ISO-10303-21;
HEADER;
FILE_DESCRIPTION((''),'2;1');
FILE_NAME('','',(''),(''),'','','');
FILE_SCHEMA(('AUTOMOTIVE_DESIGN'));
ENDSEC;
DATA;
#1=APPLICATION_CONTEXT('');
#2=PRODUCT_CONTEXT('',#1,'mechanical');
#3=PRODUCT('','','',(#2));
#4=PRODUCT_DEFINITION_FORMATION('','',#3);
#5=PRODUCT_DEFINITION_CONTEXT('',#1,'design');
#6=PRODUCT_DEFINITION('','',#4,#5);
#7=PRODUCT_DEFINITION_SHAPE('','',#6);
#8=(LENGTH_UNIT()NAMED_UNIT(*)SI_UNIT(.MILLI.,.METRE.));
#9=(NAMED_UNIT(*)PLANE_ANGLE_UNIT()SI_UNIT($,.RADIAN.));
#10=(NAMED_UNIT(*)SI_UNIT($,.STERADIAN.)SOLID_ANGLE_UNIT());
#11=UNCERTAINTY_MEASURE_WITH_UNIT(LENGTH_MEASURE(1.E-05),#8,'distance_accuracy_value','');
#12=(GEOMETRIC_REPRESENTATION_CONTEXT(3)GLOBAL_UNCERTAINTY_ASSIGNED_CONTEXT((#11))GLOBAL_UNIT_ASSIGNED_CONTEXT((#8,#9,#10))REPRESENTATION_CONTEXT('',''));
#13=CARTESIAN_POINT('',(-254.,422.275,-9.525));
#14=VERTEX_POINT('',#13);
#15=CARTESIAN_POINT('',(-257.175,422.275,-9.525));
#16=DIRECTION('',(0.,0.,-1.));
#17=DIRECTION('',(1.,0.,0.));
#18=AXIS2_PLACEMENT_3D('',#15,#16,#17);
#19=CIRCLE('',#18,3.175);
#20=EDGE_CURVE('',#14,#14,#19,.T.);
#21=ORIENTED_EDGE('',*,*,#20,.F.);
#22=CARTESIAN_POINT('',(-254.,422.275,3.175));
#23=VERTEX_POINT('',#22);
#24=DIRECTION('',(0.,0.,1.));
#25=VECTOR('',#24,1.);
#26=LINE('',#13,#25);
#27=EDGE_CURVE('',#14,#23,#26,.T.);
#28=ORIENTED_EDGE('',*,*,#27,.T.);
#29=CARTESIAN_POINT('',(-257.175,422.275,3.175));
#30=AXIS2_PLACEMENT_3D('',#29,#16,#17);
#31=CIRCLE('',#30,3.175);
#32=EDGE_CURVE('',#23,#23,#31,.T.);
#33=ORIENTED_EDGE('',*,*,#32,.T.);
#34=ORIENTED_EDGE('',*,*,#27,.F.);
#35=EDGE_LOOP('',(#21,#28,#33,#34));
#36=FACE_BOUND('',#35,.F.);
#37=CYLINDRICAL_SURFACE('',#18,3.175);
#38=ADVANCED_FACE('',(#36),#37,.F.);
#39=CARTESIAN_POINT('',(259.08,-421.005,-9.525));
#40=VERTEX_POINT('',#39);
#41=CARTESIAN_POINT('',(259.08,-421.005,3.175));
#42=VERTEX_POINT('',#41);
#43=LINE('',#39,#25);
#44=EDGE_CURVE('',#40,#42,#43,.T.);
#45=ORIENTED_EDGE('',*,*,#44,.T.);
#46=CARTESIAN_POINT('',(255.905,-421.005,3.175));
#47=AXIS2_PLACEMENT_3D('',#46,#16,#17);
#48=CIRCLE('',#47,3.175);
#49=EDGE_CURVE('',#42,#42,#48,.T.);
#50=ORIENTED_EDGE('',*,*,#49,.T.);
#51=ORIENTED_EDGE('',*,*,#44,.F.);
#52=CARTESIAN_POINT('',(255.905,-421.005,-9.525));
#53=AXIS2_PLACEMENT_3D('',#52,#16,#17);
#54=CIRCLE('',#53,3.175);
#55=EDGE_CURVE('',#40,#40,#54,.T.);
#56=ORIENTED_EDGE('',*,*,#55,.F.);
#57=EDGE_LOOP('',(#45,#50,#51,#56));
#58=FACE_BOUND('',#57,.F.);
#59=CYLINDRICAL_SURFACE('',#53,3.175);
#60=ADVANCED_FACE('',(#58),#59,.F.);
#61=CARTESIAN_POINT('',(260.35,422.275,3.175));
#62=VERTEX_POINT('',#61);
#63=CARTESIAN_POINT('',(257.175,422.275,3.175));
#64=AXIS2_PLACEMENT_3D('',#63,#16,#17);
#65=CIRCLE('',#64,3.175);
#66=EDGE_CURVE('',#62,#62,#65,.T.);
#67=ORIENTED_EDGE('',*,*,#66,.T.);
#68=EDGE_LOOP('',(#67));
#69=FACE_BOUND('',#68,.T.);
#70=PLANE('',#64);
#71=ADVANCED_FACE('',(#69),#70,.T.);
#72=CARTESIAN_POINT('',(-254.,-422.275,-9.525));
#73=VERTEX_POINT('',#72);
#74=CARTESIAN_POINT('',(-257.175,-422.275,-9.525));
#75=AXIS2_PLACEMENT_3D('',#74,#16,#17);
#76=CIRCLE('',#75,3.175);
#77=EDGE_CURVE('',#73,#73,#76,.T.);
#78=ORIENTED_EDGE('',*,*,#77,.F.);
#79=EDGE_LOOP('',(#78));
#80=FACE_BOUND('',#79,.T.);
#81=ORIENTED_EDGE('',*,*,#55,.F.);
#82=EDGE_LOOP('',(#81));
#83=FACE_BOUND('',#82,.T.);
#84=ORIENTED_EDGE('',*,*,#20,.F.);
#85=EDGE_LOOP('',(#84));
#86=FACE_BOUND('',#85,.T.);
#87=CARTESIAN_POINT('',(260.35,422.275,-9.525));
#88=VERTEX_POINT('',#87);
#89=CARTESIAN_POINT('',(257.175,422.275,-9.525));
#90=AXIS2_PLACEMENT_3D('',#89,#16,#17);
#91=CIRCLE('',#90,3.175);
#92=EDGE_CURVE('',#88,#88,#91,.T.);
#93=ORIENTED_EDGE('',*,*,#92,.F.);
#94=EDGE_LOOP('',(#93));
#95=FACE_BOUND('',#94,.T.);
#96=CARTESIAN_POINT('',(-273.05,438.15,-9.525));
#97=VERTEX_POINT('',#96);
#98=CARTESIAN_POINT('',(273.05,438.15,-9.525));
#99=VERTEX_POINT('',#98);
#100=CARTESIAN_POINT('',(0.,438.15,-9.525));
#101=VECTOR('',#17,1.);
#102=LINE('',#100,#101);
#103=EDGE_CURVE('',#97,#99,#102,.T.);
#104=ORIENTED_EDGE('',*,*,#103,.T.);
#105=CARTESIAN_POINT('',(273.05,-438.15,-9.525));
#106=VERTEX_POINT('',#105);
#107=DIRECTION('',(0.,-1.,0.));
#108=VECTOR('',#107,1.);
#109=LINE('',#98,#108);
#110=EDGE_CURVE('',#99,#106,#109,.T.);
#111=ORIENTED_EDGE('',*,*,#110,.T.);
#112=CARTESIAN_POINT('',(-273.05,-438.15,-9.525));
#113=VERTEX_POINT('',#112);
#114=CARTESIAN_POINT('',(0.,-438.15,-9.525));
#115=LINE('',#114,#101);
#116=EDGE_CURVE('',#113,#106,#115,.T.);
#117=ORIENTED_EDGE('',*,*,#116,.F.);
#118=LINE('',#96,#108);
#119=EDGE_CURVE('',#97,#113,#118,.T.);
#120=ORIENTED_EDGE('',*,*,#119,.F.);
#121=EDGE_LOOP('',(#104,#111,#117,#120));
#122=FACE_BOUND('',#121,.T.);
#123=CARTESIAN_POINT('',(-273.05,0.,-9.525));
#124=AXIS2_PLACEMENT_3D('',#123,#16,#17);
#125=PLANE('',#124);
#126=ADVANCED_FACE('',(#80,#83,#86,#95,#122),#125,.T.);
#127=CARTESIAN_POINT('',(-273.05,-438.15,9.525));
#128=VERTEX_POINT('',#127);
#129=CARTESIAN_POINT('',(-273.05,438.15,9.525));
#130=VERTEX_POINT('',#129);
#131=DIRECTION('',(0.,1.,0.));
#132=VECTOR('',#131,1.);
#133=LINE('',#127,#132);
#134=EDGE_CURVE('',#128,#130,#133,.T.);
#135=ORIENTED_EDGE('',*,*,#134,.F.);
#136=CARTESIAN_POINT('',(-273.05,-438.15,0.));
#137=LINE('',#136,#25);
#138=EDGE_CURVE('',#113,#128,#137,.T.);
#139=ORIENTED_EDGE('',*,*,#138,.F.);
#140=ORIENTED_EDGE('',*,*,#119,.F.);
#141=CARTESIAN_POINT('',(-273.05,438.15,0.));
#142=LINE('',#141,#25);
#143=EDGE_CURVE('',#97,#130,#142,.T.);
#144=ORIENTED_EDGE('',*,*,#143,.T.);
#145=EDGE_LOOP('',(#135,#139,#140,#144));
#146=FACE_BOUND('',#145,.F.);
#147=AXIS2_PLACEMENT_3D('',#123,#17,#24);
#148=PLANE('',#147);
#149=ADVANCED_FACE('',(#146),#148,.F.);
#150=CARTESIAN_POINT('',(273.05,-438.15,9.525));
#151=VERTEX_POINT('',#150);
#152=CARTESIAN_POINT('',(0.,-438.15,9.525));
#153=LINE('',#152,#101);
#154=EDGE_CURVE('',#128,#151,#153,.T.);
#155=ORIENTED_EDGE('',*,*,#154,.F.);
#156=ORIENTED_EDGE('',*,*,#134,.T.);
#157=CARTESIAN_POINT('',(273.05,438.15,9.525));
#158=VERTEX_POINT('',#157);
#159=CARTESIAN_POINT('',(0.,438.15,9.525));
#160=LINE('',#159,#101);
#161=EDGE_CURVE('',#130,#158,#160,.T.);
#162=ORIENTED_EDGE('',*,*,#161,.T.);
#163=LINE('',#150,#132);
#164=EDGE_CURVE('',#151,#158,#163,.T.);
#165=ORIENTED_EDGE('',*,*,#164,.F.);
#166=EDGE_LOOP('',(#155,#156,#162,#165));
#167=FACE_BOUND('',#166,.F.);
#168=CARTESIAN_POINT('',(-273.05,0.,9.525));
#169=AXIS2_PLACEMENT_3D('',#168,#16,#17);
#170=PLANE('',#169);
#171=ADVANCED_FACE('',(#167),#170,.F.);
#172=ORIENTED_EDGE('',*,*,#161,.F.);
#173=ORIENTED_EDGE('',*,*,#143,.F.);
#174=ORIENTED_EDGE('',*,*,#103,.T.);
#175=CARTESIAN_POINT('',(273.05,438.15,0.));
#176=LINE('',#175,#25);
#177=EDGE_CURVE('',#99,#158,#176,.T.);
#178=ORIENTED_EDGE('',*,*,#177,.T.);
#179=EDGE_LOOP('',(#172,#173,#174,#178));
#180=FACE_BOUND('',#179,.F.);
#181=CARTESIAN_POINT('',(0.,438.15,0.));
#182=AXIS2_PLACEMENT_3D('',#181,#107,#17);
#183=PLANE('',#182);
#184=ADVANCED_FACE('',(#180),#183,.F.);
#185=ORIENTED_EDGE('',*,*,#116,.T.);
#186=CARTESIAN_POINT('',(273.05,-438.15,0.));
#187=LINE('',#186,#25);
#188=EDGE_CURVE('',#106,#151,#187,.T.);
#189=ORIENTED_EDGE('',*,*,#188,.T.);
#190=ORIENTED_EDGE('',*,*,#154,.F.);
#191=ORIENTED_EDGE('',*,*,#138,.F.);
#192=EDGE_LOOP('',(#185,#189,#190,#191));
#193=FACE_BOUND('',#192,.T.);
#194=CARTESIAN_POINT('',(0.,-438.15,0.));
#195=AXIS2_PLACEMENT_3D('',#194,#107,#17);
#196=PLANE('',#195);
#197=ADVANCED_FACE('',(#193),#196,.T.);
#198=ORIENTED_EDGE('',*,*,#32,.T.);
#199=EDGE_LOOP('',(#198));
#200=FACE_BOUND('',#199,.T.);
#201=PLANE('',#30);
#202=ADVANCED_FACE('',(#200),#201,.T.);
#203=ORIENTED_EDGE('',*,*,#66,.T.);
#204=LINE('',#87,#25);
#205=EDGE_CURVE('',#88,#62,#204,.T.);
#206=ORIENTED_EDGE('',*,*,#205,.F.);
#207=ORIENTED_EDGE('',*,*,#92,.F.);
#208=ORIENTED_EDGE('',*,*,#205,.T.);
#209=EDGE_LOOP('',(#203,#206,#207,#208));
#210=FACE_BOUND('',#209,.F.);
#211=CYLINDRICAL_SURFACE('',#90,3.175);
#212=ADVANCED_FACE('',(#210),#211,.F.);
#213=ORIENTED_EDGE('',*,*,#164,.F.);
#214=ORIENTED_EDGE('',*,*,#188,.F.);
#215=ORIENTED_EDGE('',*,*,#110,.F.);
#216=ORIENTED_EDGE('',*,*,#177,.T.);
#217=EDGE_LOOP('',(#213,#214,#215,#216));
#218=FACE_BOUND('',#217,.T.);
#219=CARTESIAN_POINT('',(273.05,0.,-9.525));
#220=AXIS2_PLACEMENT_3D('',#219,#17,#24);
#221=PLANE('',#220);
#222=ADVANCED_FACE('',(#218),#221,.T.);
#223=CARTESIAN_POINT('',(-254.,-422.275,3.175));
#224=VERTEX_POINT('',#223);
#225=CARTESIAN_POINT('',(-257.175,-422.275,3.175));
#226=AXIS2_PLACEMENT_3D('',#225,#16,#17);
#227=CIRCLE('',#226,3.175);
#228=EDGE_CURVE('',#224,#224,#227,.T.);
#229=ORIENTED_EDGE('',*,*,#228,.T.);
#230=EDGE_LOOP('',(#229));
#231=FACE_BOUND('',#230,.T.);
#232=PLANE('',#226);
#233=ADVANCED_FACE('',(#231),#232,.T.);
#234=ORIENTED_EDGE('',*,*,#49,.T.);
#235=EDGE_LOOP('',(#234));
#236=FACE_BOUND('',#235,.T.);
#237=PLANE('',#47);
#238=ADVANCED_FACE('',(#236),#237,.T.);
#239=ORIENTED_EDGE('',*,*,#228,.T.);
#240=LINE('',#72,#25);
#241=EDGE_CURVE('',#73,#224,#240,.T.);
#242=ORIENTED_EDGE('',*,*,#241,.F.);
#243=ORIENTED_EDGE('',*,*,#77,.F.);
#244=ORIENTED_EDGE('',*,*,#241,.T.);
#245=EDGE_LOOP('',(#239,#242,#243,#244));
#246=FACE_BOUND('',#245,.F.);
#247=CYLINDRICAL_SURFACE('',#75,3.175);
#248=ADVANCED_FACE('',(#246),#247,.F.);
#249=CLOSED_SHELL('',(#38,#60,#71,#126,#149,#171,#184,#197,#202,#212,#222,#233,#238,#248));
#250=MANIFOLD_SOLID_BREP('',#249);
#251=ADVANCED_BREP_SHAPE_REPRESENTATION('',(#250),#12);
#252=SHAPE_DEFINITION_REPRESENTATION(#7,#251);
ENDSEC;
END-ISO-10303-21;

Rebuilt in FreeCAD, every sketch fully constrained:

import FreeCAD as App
import Part
import Sketcher
from FreeCAD import Vector
Q = App.Units.Quantity


def add_polygon(sketch, points):
    """Adds a closed chain of lines whose ends are joined by coincident constraints."""
    first, n = sketch.GeometryCount, len(points)
    for a, b in zip(points, points[1:] + points[:1]):
        sketch.addGeometry(Part.LineSegment(App.Vector(*a, 0), App.Vector(*b, 0)), False)
    for i in range(n):
        sketch.addConstraint(Sketcher.Constraint("Coincident", first + i, 2, first + (i + 1) % n, 1))

doc = App.newDocument("Part")
body = doc.addObject("PartDesign::Body", "Body")

# Sketch on XZ plane
sketch1 = doc.addObject("Sketcher::SketchObject", "Sketch")
body.addObject(sketch1)
sketch1.AttachmentSupport = (doc.XZ_Plane, [""])
sketch1.MapMode = "FlatFace"
add_polygon(sketch1, [(-273, 10), (-273, -10), (273, -10), (273, 10)])  # lines 0-3
sketch1.addConstraint(Sketcher.Constraint("Vertical", 0))
sketch1.addConstraint(Sketcher.Constraint("Horizontal", 1))
sketch1.addConstraint(Sketcher.Constraint("Vertical", 2))
sketch1.addConstraint(Sketcher.Constraint("Horizontal", 3))
sketch1.addConstraint(Sketcher.Constraint("Symmetric", 0, 2, 2, 2, -1, 1))
sketch1.addConstraint(Sketcher.Constraint("DistanceX", 1, 1, 1, 2, Q("21.5 in")))
sketch1.addConstraint(Sketcher.Constraint("DistanceY", 0, 2, 0, 1, Q("0.75 in")))
pad1 = doc.addObject("PartDesign::Pad", "Pad")
body.addObject(pad1)
pad1.Profile = sketch1
pad1.Length = Q("34.5 in")
pad1.Midplane = True

# Sketch on XY plane
sketch2 = doc.addObject("Sketcher::SketchObject", "Sketch001")
body.addObject(sketch2)
sketch2.AttachmentSupport = (doc.XY_Plane, [""])
sketch2.MapMode = "FlatFace"
sketch2.AttachmentOffset = App.Placement(Vector(0, 0, -0.375 * 25.4), App.Rotation())
sketch2.addGeometry(Part.Circle(Vector(255.9, -421, 0), Vector(0, 0, 1), 3.2), False)
sketch2.addGeometry(Part.Circle(Vector(257.2, 422.3, 0), Vector(0, 0, 1), 3.2), False)
sketch2.addGeometry(Part.Circle(Vector(-257.2, 422.3, 0), Vector(0, 0, 1), 3.2), False)
sketch2.addGeometry(Part.Circle(Vector(-257.2, -422.3, 0), Vector(0, 0, 1), 3.2), False)
sketch2.addConstraint(Sketcher.Constraint("Equal", 0, 1))
sketch2.addConstraint(Sketcher.Constraint("Equal", 1, 2))
sketch2.addConstraint(Sketcher.Constraint("Equal", 2, 3))
sketch2.addConstraint(Sketcher.Constraint("Symmetric", 1, 3, 3, 3, -1, 1))
sketch2.addConstraint(Sketcher.Constraint("Symmetric", 1, 3, 2, 3, -2))
sketch2.addConstraint(Sketcher.Constraint("Diameter", 0, Q("0.25 in")))
sketch2.addConstraint(Sketcher.Constraint("DistanceY", 0, 3, 1, 3, Q("33.2 in")))
sketch2.addConstraint(Sketcher.Constraint("DistanceX", 2, 3, 0, 3, Q("20.2 in")))
sketch2.addConstraint(Sketcher.Constraint("DistanceX", 0, 3, 1, 3, Q("0.05 in")))
sketch2.addConstraint(Sketcher.Constraint("DistanceY", 3, 3, 0, 3, Q("0.05 in")))
pocket1 = doc.addObject("PartDesign::Pocket", "Pocket")
body.addObject(pocket1)
pocket1.Profile = sketch2
pocket1.Length = Q("0.5 in")
pocket1.Reversed = True

doc.recompute()
